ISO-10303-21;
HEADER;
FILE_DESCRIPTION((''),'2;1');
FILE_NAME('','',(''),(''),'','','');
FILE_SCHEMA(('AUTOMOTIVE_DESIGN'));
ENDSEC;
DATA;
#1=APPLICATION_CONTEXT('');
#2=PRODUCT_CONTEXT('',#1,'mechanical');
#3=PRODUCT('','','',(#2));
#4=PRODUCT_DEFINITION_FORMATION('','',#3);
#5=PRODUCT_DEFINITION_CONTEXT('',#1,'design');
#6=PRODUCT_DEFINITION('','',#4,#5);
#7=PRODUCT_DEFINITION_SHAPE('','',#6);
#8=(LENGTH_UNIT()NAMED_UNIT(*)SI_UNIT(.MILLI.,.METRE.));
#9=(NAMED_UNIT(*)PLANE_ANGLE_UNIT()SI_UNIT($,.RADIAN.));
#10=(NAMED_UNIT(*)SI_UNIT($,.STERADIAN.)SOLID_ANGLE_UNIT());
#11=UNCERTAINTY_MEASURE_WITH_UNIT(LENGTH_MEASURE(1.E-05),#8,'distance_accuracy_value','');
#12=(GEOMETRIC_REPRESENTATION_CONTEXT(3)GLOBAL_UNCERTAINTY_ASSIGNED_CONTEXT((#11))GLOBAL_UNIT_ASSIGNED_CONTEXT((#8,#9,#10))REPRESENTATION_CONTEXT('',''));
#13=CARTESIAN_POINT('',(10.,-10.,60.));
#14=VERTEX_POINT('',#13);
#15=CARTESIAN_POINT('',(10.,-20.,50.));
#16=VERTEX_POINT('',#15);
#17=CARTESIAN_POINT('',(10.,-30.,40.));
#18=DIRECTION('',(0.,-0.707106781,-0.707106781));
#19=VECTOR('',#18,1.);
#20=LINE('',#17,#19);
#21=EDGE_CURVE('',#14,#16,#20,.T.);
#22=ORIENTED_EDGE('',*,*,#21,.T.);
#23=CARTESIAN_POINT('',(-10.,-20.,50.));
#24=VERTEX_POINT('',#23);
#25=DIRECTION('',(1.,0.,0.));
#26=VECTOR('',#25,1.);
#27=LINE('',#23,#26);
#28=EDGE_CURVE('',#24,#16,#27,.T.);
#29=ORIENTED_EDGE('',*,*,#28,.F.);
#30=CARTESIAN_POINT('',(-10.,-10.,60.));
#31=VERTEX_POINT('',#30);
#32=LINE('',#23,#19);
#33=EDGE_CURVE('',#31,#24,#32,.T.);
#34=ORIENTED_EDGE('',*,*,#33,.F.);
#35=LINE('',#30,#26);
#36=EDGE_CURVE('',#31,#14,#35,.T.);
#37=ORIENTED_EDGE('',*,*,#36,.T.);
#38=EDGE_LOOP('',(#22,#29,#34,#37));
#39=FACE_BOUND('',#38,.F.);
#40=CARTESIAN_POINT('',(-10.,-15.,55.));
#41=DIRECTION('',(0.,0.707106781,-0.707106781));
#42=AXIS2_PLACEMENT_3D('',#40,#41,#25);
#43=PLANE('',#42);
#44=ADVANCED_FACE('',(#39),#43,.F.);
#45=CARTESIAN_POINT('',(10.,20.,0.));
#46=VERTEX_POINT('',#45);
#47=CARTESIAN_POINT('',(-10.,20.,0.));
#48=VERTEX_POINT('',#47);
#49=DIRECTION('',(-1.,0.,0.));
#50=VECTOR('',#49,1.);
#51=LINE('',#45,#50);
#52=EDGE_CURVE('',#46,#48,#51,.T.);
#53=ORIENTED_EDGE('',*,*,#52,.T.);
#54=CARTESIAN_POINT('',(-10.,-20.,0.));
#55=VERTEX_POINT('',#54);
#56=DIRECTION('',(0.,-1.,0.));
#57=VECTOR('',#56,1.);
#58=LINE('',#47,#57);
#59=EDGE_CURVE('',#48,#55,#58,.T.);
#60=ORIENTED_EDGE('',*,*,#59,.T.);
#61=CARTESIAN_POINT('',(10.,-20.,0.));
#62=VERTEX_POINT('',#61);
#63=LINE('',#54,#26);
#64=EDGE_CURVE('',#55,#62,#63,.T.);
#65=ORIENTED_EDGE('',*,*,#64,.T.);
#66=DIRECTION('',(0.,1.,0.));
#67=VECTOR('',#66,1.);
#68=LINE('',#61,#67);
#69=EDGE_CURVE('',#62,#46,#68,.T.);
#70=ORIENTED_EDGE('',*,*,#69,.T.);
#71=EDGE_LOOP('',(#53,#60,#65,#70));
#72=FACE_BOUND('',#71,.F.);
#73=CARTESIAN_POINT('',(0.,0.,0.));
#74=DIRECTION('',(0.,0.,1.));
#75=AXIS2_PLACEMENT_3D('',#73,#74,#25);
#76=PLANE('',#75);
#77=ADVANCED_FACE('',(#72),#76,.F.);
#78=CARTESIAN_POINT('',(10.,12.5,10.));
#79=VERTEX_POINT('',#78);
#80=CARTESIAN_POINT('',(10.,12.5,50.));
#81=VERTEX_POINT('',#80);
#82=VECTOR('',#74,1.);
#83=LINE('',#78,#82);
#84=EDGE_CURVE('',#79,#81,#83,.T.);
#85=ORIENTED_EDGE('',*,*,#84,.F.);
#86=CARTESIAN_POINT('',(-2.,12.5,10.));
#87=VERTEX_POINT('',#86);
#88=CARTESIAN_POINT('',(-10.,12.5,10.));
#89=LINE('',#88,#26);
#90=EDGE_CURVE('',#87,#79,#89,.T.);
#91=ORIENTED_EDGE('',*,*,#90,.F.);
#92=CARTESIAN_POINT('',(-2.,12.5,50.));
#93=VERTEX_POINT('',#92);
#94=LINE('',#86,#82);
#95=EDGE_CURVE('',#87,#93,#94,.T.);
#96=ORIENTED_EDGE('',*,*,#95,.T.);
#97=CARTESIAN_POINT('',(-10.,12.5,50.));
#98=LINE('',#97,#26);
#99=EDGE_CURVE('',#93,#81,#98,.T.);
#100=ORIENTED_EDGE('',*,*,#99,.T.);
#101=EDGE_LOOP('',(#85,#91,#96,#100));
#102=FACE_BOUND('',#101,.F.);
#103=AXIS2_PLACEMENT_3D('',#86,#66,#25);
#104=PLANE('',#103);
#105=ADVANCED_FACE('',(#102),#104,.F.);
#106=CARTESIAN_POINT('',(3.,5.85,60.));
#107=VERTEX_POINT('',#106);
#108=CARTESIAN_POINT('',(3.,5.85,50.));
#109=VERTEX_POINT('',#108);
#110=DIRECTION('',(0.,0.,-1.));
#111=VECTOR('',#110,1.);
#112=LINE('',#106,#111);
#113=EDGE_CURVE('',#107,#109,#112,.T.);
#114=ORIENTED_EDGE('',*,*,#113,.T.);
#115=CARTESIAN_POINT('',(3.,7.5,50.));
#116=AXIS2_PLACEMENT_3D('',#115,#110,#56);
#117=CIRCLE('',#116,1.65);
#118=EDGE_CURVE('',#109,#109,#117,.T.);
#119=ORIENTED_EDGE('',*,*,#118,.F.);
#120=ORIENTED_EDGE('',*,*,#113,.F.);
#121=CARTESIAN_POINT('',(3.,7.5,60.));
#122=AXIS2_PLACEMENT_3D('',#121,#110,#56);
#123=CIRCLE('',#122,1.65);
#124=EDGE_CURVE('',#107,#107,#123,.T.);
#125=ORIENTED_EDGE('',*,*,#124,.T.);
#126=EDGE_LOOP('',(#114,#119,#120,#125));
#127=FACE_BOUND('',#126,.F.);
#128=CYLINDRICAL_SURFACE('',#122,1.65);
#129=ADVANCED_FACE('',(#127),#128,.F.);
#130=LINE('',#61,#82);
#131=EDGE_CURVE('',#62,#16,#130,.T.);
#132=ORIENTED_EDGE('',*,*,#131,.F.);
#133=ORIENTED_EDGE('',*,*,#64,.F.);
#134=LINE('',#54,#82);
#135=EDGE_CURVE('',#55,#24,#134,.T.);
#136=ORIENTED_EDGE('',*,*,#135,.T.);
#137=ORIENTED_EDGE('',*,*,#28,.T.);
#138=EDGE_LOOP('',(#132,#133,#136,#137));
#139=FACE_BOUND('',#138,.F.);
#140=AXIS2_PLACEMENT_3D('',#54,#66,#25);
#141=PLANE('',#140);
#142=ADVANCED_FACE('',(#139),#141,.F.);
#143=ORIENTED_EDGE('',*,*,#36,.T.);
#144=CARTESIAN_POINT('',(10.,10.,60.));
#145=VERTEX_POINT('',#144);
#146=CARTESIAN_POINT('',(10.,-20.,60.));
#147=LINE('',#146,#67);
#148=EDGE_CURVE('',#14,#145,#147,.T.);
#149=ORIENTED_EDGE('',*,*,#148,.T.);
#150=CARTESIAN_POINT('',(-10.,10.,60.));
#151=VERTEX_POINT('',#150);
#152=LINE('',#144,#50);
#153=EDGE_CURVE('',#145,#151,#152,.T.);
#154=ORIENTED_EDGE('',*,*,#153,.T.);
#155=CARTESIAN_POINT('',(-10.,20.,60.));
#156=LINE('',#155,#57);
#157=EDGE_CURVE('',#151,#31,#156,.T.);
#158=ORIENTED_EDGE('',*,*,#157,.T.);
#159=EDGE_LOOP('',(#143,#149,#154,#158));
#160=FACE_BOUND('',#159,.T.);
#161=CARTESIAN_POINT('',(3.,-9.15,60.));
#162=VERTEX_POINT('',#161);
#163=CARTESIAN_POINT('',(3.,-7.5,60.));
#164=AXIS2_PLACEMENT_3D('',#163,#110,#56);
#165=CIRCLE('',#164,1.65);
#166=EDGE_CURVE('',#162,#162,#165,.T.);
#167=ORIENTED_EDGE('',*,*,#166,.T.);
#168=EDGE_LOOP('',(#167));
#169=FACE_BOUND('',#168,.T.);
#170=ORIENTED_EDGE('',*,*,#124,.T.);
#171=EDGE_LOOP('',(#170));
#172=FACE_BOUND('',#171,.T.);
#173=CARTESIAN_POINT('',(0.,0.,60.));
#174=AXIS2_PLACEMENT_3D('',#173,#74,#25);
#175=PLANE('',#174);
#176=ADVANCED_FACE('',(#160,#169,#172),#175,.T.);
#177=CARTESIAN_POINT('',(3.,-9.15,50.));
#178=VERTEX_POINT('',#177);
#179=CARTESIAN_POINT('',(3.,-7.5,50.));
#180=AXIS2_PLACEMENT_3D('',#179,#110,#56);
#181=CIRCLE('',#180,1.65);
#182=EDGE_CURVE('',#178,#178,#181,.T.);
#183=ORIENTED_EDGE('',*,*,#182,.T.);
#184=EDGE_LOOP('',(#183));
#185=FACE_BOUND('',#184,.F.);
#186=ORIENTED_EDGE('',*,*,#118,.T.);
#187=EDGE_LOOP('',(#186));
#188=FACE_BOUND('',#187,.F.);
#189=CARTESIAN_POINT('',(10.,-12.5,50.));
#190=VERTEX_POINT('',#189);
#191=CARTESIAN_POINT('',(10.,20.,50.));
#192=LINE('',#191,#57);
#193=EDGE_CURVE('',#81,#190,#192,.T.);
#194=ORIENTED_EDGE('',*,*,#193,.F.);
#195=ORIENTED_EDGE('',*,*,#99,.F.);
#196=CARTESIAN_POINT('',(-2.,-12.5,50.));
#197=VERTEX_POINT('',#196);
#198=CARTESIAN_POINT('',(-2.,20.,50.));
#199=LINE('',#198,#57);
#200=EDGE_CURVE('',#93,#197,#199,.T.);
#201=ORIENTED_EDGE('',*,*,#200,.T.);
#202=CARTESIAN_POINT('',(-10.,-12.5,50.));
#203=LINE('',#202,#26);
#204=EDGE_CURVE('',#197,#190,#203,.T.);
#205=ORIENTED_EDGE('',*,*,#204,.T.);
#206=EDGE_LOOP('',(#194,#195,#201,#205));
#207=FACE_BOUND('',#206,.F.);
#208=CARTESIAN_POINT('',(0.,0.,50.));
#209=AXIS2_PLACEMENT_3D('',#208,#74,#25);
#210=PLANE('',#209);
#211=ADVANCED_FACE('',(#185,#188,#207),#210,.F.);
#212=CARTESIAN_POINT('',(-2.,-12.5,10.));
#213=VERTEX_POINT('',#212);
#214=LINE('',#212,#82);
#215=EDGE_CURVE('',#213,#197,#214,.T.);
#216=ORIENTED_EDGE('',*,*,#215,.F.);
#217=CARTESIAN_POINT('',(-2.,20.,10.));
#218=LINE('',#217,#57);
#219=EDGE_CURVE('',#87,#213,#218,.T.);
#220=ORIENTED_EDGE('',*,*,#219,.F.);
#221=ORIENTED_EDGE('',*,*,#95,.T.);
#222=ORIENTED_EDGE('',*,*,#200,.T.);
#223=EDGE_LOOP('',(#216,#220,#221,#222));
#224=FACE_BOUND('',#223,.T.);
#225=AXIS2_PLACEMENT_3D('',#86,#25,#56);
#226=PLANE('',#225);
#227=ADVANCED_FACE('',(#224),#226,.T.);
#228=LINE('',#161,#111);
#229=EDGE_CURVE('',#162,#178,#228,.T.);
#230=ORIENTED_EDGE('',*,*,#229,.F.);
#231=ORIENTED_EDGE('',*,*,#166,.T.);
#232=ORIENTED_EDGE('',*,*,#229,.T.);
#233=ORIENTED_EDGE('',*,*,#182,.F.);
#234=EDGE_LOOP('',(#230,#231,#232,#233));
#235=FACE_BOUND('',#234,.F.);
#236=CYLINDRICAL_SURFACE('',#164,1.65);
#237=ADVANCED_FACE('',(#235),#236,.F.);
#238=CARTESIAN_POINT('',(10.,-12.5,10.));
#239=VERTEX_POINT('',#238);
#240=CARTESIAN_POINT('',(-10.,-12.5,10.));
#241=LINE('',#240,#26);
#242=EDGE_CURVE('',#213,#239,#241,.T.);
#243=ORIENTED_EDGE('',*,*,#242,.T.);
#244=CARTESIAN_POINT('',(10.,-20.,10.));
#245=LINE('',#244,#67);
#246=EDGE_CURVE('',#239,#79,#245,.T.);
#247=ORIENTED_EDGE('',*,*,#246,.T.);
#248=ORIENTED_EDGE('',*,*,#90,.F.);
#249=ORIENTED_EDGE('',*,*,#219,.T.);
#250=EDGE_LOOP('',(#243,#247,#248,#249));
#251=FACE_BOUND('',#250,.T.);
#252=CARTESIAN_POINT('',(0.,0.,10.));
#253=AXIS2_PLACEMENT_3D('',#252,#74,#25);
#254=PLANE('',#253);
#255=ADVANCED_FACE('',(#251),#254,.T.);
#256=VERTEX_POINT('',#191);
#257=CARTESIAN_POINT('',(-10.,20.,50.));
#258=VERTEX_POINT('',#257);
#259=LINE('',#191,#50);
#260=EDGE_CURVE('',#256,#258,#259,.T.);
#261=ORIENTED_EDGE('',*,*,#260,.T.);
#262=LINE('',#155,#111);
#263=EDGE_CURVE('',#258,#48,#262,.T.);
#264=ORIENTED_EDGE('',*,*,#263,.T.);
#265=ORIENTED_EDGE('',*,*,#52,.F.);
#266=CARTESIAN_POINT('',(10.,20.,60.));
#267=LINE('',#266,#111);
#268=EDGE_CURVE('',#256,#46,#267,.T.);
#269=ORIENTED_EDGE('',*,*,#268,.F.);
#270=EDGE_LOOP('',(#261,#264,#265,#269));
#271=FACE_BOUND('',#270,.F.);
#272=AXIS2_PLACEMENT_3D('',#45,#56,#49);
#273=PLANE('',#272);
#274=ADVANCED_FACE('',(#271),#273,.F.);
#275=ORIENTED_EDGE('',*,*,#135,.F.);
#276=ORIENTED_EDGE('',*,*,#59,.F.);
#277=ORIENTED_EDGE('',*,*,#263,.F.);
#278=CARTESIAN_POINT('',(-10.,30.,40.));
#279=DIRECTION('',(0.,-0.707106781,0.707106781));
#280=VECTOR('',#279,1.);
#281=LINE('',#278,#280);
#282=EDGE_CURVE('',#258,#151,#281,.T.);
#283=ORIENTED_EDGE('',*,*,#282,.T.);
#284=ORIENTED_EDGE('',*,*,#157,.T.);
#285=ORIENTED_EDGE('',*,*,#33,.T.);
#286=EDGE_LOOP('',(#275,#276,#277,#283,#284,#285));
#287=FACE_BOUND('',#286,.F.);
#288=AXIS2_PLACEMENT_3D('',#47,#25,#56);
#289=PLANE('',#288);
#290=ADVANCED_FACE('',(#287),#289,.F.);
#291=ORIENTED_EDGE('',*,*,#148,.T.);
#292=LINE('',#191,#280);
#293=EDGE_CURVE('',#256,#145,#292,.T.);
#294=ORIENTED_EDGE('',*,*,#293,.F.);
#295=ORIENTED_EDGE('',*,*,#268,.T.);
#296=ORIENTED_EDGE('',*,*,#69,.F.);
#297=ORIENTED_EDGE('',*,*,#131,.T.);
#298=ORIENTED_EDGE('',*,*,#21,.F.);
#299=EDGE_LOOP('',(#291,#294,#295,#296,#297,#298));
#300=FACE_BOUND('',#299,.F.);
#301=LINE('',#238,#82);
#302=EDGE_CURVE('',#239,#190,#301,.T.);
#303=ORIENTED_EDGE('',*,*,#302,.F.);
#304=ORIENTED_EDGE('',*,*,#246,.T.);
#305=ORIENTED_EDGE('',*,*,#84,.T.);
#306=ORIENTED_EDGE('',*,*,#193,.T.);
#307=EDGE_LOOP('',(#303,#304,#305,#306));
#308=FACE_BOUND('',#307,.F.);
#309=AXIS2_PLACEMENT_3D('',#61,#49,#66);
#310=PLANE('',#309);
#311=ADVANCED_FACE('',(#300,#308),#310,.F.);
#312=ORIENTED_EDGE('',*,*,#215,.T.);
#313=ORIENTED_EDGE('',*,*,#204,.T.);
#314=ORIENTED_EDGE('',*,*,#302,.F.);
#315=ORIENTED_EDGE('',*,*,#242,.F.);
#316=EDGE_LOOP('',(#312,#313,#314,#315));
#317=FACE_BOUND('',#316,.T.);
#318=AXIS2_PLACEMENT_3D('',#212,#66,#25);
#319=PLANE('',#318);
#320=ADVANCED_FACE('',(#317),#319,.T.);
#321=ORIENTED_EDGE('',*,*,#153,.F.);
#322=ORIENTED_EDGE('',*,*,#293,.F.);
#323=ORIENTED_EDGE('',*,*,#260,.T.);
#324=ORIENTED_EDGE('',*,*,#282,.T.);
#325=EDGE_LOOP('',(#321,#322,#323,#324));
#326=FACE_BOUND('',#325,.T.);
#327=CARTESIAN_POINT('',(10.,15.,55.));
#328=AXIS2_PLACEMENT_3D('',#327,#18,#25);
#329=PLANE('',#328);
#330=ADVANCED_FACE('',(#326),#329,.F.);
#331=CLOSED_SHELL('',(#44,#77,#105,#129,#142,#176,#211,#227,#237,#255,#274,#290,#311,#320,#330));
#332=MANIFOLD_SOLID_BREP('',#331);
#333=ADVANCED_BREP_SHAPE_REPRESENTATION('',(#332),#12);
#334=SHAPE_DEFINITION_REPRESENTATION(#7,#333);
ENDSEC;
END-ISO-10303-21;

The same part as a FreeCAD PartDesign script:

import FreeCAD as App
import Part
import Sketcher
from FreeCAD import Vector


def edges_at(feature, points):
    """Names of the edges that pass closest to the given points."""
    edges = feature.Shape.Edges
    near = lambda p: min(range(len(edges)), key=lambda i: edges[i].distToShape(Part.Vertex(*p))[0])
    return sorted({f"Edge{near(p) + 1}" for p in points})

doc = App.newDocument("Part")
body = doc.addObject("PartDesign::Body", "Body")

# Sketch on XY plane
sketch1 = body.newObject("Sketcher::SketchObject", "Sketch")
sketch1.AttachmentSupport = (doc.getObject("XY_Plane"), [""])
sketch1.MapMode = "FlatFace"
sketch1.addGeometry(Part.LineSegment(Vector(-10, 20, 0), Vector(-10, -20, 0)), False)
sketch1.addGeometry(Part.LineSegment(Vector(-10, -20, 0), Vector(10, -20, 0)), False)
sketch1.addGeometry(Part.LineSegment(Vector(10, -20, 0), Vector(10, 20, 0)), False)
sketch1.addGeometry(Part.LineSegment(Vector(10, 20, 0), Vector(-10, 20, 0)), False)
sketch1.addConstraint(Sketcher.Constraint("Coincident", 0, 2, 1, 1))
sketch1.addConstraint(Sketcher.Constraint("Coincident", 1, 2, 2, 1))
sketch1.addConstraint(Sketcher.Constraint("Coincident", 2, 2, 3, 1))
sketch1.addConstraint(Sketcher.Constraint("Coincident", 3, 2, 0, 1))
sketch1.addConstraint(Sketcher.Constraint("Vertical", 0))
sketch1.addConstraint(Sketcher.Constraint("Horizontal", 1))
sketch1.addConstraint(Sketcher.Constraint("Vertical", 2))
sketch1.addConstraint(Sketcher.Constraint("Horizontal", 3))
sketch1.addConstraint(Sketcher.Constraint("Symmetric", 0, 2, 2, 2, -1, 1))
sketch1.addConstraint(Sketcher.Constraint("DistanceX", 1, 1, 1, 2, 20.0))
sketch1.addConstraint(Sketcher.Constraint("DistanceY", 0, 2, 0, 1, 40.0))
pad1 = body.newObject("PartDesign::Pad", "Pad")
pad1.Profile = sketch1
pad1.Length = 10

# Sketch on XY plane
sketch2 = body.newObject("Sketcher::SketchObject", "Sketch001")
sketch2.AttachmentSupport = (doc.getObject("XY_Plane"), [""])
sketch2.MapMode = "FlatFace"
sketch2.AttachmentOffset = App.Placement(Vector(0, 0, 10), App.Rotation())
sketch2.addGeometry(Part.LineSegment(Vector(-10, 20, 0), Vector(-10, -20, 0)), False)
sketch2.addGeometry(Part.LineSegment(Vector(-10, -20, 0), Vector(10, -20, 0)), False)
sketch2.addGeometry(Part.LineSegment(Vector(10, -20, 0), Vector(10, -12, 0)), False)
sketch2.addGeometry(Part.LineSegment(Vector(10, -12, 0), Vector(-2, -12, 0)), False)
sketch2.addGeometry(Part.LineSegment(Vector(-2, -12, 0), Vector(-2, 12, 0)), False)
sketch2.addGeometry(Part.LineSegment(Vector(-2, 12, 0), Vector(10, 12, 0)), False)
sketch2.addGeometry(Part.LineSegment(Vector(10, 12, 0), Vector(10, 20, 0)), False)
sketch2.addGeometry(Part.LineSegment(Vector(10, 20, 0), Vector(-10, 20, 0)), False)
sketch2.addConstraint(Sketcher.Constraint("Coincident", 0, 2, 1, 1))
sketch2.addConstraint(Sketcher.Constraint("Coincident", 1, 2, 2, 1))
sketch2.addConstraint(Sketcher.Constraint("Coincident", 2, 2, 3, 1))
sketch2.addConstraint(Sketcher.Constraint("Coincident", 3, 2, 4, 1))
sketch2.addConstraint(Sketcher.Constraint("Coincident", 4, 2, 5, 1))
sketch2.addConstraint(Sketcher.Constraint("Coincident", 5, 2, 6, 1))
sketch2.addConstraint(Sketcher.Constraint("Coincident", 6, 2, 7, 1))
sketch2.addConstraint(Sketcher.Constraint("Coincident", 7, 2, 0, 1))
sketch2.addConstraint(Sketcher.Constraint("Vertical", 0))
sketch2.addConstraint(Sketcher.Constraint("Horizontal", 1))
sketch2.addConstraint(Sketcher.Constraint("Vertical", 2))
sketch2.addConstraint(Sketcher.Constraint("Horizontal", 3))
sketch2.addConstraint(Sketcher.Constraint("Vertical", 4))
sketch2.addConstraint(Sketcher.Constraint("Horizontal", 5))
sketch2.addConstraint(Sketcher.Constraint("Vertical", 6))
sketch2.addConstraint(Sketcher.Constraint("Horizontal", 7))
sketch2.addConstraint(Sketcher.Constraint("Symmetric", 0, 2, 6, 2, -1, 1))
sketch2.addConstraint(Sketcher.Constraint("Symmetric", 2, 2, 5, 2, -1))
sketch2.addConstraint(Sketcher.Constraint("DistanceY", 2, 1, 2, 2, 7.5))
sketch2.addConstraint(Sketcher.Constraint("DistanceX", 0, 2, 3, 2, 8.0))
sketch2.addConstraint(Sketcher.Constraint("DistanceX", 1, 1, 1, 2, 20.0))
sketch2.addConstraint(Sketcher.Constraint("DistanceY", 0, 2, 0, 1, 40.0))
pad2 = body.newObject("PartDesign::Pad", "Pad001")
pad2.Profile = sketch2
pad2.Length = 40

# Sketch on XY plane
sketch3 = body.newObject("Sketcher::SketchObject", "Sketch002")
sketch3.AttachmentSupport = (doc.getObject("XY_Plane"), [""])
sketch3.MapMode = "FlatFace"
sketch3.AttachmentOffset = App.Placement(Vector(0, 0, 50), App.Rotation())
sketch3.addGeometry(Part.LineSegment(Vector(-10, 20, 0), Vector(-10, -20, 0)), False)
sketch3.addGeometry(Part.LineSegment(Vector(-10, -20, 0), Vector(10, -20, 0)), False)
sketch3.addGeometry(Part.LineSegment(Vector(10, -20, 0), Vector(10, 20, 0)), False)
sketch3.addGeometry(Part.LineSegment(Vector(10, 20, 0), Vector(-10, 20, 0)), False)
sketch3.addConstraint(Sketcher.Constraint("Coincident", 0, 2, 1, 1))
sketch3.addConstraint(Sketcher.Constraint("Coincident", 1, 2, 2, 1))
sketch3.addConstraint(Sketcher.Constraint("Coincident", 2, 2, 3, 1))
sketch3.addConstraint(Sketcher.Constraint("Coincident", 3, 2, 0, 1))
sketch3.addConstraint(Sketcher.Constraint("Vertical", 0))
sketch3.addConstraint(Sketcher.Constraint("Horizontal", 1))
sketch3.addConstraint(Sketcher.Constraint("Vertical", 2))
sketch3.addConstraint(Sketcher.Constraint("Horizontal", 3))
sketch3.addConstraint(Sketcher.Constraint("Symmetric", 0, 2, 2, 2, -1, 1))
sketch3.addConstraint(Sketcher.Constraint("DistanceX", 1, 1, 1, 2, 20.0))
sketch3.addConstraint(Sketcher.Constraint("DistanceY", 0, 2, 0, 1, 40.0))
pad3 = body.newObject("PartDesign::Pad", "Pad002")
pad3.Profile = sketch3
pad3.Length = 10

# Sketch on XY plane
sketch4 = body.newObject("Sketcher::SketchObject", "Sketch003")
sketch4.AttachmentSupport = (doc.getObject("XY_Plane"), [""])
sketch4.MapMode = "FlatFace"
sketch4.AttachmentOffset = App.Placement(Vector(0, 0, 60), App.Rotation())
sketch4.addGeometry(Part.Circle(Vector(3, 7.5, 0), Vector(0, 0, 1), 1.6), False)
sketch4.addGeometry(Part.Circle(Vector(3, -7.5, 0), Vector(0, 0, 1), 1.6), False)
sketch4.addConstraint(Sketcher.Constraint("Equal", 0, 1))
sketch4.addConstraint(Sketcher.Constraint("Symmetric", 0, 3, 1, 3, -1))
sketch4.addConstraint(Sketcher.Constraint("Diameter", 0, 3.3))
sketch4.addConstraint(Sketcher.Constraint("DistanceX", -1, 1, 0, 3, 3.0))
sketch4.addConstraint(Sketcher.Constraint("DistanceY", 1, 3, 0, 3, 15.0))
doc.recompute()
hole = body.newObject("PartDesign::Hole", "Hole")
hole.Profile = sketch4
hole.ThreadType = "None"
hole.Diameter = 3.3
hole.DepthType = "Dimension"
hole.Depth = 40.25
hole.DrillPoint = "Flat"
doc.recompute()

chamfer = body.newObject("PartDesign::Chamfer", "Chamfer")
chamfer.Base = (hole, edges_at(hole, [(0, 20, 60), (0, -20, 60)]))
chamfer.Size = 10

doc.recompute()
